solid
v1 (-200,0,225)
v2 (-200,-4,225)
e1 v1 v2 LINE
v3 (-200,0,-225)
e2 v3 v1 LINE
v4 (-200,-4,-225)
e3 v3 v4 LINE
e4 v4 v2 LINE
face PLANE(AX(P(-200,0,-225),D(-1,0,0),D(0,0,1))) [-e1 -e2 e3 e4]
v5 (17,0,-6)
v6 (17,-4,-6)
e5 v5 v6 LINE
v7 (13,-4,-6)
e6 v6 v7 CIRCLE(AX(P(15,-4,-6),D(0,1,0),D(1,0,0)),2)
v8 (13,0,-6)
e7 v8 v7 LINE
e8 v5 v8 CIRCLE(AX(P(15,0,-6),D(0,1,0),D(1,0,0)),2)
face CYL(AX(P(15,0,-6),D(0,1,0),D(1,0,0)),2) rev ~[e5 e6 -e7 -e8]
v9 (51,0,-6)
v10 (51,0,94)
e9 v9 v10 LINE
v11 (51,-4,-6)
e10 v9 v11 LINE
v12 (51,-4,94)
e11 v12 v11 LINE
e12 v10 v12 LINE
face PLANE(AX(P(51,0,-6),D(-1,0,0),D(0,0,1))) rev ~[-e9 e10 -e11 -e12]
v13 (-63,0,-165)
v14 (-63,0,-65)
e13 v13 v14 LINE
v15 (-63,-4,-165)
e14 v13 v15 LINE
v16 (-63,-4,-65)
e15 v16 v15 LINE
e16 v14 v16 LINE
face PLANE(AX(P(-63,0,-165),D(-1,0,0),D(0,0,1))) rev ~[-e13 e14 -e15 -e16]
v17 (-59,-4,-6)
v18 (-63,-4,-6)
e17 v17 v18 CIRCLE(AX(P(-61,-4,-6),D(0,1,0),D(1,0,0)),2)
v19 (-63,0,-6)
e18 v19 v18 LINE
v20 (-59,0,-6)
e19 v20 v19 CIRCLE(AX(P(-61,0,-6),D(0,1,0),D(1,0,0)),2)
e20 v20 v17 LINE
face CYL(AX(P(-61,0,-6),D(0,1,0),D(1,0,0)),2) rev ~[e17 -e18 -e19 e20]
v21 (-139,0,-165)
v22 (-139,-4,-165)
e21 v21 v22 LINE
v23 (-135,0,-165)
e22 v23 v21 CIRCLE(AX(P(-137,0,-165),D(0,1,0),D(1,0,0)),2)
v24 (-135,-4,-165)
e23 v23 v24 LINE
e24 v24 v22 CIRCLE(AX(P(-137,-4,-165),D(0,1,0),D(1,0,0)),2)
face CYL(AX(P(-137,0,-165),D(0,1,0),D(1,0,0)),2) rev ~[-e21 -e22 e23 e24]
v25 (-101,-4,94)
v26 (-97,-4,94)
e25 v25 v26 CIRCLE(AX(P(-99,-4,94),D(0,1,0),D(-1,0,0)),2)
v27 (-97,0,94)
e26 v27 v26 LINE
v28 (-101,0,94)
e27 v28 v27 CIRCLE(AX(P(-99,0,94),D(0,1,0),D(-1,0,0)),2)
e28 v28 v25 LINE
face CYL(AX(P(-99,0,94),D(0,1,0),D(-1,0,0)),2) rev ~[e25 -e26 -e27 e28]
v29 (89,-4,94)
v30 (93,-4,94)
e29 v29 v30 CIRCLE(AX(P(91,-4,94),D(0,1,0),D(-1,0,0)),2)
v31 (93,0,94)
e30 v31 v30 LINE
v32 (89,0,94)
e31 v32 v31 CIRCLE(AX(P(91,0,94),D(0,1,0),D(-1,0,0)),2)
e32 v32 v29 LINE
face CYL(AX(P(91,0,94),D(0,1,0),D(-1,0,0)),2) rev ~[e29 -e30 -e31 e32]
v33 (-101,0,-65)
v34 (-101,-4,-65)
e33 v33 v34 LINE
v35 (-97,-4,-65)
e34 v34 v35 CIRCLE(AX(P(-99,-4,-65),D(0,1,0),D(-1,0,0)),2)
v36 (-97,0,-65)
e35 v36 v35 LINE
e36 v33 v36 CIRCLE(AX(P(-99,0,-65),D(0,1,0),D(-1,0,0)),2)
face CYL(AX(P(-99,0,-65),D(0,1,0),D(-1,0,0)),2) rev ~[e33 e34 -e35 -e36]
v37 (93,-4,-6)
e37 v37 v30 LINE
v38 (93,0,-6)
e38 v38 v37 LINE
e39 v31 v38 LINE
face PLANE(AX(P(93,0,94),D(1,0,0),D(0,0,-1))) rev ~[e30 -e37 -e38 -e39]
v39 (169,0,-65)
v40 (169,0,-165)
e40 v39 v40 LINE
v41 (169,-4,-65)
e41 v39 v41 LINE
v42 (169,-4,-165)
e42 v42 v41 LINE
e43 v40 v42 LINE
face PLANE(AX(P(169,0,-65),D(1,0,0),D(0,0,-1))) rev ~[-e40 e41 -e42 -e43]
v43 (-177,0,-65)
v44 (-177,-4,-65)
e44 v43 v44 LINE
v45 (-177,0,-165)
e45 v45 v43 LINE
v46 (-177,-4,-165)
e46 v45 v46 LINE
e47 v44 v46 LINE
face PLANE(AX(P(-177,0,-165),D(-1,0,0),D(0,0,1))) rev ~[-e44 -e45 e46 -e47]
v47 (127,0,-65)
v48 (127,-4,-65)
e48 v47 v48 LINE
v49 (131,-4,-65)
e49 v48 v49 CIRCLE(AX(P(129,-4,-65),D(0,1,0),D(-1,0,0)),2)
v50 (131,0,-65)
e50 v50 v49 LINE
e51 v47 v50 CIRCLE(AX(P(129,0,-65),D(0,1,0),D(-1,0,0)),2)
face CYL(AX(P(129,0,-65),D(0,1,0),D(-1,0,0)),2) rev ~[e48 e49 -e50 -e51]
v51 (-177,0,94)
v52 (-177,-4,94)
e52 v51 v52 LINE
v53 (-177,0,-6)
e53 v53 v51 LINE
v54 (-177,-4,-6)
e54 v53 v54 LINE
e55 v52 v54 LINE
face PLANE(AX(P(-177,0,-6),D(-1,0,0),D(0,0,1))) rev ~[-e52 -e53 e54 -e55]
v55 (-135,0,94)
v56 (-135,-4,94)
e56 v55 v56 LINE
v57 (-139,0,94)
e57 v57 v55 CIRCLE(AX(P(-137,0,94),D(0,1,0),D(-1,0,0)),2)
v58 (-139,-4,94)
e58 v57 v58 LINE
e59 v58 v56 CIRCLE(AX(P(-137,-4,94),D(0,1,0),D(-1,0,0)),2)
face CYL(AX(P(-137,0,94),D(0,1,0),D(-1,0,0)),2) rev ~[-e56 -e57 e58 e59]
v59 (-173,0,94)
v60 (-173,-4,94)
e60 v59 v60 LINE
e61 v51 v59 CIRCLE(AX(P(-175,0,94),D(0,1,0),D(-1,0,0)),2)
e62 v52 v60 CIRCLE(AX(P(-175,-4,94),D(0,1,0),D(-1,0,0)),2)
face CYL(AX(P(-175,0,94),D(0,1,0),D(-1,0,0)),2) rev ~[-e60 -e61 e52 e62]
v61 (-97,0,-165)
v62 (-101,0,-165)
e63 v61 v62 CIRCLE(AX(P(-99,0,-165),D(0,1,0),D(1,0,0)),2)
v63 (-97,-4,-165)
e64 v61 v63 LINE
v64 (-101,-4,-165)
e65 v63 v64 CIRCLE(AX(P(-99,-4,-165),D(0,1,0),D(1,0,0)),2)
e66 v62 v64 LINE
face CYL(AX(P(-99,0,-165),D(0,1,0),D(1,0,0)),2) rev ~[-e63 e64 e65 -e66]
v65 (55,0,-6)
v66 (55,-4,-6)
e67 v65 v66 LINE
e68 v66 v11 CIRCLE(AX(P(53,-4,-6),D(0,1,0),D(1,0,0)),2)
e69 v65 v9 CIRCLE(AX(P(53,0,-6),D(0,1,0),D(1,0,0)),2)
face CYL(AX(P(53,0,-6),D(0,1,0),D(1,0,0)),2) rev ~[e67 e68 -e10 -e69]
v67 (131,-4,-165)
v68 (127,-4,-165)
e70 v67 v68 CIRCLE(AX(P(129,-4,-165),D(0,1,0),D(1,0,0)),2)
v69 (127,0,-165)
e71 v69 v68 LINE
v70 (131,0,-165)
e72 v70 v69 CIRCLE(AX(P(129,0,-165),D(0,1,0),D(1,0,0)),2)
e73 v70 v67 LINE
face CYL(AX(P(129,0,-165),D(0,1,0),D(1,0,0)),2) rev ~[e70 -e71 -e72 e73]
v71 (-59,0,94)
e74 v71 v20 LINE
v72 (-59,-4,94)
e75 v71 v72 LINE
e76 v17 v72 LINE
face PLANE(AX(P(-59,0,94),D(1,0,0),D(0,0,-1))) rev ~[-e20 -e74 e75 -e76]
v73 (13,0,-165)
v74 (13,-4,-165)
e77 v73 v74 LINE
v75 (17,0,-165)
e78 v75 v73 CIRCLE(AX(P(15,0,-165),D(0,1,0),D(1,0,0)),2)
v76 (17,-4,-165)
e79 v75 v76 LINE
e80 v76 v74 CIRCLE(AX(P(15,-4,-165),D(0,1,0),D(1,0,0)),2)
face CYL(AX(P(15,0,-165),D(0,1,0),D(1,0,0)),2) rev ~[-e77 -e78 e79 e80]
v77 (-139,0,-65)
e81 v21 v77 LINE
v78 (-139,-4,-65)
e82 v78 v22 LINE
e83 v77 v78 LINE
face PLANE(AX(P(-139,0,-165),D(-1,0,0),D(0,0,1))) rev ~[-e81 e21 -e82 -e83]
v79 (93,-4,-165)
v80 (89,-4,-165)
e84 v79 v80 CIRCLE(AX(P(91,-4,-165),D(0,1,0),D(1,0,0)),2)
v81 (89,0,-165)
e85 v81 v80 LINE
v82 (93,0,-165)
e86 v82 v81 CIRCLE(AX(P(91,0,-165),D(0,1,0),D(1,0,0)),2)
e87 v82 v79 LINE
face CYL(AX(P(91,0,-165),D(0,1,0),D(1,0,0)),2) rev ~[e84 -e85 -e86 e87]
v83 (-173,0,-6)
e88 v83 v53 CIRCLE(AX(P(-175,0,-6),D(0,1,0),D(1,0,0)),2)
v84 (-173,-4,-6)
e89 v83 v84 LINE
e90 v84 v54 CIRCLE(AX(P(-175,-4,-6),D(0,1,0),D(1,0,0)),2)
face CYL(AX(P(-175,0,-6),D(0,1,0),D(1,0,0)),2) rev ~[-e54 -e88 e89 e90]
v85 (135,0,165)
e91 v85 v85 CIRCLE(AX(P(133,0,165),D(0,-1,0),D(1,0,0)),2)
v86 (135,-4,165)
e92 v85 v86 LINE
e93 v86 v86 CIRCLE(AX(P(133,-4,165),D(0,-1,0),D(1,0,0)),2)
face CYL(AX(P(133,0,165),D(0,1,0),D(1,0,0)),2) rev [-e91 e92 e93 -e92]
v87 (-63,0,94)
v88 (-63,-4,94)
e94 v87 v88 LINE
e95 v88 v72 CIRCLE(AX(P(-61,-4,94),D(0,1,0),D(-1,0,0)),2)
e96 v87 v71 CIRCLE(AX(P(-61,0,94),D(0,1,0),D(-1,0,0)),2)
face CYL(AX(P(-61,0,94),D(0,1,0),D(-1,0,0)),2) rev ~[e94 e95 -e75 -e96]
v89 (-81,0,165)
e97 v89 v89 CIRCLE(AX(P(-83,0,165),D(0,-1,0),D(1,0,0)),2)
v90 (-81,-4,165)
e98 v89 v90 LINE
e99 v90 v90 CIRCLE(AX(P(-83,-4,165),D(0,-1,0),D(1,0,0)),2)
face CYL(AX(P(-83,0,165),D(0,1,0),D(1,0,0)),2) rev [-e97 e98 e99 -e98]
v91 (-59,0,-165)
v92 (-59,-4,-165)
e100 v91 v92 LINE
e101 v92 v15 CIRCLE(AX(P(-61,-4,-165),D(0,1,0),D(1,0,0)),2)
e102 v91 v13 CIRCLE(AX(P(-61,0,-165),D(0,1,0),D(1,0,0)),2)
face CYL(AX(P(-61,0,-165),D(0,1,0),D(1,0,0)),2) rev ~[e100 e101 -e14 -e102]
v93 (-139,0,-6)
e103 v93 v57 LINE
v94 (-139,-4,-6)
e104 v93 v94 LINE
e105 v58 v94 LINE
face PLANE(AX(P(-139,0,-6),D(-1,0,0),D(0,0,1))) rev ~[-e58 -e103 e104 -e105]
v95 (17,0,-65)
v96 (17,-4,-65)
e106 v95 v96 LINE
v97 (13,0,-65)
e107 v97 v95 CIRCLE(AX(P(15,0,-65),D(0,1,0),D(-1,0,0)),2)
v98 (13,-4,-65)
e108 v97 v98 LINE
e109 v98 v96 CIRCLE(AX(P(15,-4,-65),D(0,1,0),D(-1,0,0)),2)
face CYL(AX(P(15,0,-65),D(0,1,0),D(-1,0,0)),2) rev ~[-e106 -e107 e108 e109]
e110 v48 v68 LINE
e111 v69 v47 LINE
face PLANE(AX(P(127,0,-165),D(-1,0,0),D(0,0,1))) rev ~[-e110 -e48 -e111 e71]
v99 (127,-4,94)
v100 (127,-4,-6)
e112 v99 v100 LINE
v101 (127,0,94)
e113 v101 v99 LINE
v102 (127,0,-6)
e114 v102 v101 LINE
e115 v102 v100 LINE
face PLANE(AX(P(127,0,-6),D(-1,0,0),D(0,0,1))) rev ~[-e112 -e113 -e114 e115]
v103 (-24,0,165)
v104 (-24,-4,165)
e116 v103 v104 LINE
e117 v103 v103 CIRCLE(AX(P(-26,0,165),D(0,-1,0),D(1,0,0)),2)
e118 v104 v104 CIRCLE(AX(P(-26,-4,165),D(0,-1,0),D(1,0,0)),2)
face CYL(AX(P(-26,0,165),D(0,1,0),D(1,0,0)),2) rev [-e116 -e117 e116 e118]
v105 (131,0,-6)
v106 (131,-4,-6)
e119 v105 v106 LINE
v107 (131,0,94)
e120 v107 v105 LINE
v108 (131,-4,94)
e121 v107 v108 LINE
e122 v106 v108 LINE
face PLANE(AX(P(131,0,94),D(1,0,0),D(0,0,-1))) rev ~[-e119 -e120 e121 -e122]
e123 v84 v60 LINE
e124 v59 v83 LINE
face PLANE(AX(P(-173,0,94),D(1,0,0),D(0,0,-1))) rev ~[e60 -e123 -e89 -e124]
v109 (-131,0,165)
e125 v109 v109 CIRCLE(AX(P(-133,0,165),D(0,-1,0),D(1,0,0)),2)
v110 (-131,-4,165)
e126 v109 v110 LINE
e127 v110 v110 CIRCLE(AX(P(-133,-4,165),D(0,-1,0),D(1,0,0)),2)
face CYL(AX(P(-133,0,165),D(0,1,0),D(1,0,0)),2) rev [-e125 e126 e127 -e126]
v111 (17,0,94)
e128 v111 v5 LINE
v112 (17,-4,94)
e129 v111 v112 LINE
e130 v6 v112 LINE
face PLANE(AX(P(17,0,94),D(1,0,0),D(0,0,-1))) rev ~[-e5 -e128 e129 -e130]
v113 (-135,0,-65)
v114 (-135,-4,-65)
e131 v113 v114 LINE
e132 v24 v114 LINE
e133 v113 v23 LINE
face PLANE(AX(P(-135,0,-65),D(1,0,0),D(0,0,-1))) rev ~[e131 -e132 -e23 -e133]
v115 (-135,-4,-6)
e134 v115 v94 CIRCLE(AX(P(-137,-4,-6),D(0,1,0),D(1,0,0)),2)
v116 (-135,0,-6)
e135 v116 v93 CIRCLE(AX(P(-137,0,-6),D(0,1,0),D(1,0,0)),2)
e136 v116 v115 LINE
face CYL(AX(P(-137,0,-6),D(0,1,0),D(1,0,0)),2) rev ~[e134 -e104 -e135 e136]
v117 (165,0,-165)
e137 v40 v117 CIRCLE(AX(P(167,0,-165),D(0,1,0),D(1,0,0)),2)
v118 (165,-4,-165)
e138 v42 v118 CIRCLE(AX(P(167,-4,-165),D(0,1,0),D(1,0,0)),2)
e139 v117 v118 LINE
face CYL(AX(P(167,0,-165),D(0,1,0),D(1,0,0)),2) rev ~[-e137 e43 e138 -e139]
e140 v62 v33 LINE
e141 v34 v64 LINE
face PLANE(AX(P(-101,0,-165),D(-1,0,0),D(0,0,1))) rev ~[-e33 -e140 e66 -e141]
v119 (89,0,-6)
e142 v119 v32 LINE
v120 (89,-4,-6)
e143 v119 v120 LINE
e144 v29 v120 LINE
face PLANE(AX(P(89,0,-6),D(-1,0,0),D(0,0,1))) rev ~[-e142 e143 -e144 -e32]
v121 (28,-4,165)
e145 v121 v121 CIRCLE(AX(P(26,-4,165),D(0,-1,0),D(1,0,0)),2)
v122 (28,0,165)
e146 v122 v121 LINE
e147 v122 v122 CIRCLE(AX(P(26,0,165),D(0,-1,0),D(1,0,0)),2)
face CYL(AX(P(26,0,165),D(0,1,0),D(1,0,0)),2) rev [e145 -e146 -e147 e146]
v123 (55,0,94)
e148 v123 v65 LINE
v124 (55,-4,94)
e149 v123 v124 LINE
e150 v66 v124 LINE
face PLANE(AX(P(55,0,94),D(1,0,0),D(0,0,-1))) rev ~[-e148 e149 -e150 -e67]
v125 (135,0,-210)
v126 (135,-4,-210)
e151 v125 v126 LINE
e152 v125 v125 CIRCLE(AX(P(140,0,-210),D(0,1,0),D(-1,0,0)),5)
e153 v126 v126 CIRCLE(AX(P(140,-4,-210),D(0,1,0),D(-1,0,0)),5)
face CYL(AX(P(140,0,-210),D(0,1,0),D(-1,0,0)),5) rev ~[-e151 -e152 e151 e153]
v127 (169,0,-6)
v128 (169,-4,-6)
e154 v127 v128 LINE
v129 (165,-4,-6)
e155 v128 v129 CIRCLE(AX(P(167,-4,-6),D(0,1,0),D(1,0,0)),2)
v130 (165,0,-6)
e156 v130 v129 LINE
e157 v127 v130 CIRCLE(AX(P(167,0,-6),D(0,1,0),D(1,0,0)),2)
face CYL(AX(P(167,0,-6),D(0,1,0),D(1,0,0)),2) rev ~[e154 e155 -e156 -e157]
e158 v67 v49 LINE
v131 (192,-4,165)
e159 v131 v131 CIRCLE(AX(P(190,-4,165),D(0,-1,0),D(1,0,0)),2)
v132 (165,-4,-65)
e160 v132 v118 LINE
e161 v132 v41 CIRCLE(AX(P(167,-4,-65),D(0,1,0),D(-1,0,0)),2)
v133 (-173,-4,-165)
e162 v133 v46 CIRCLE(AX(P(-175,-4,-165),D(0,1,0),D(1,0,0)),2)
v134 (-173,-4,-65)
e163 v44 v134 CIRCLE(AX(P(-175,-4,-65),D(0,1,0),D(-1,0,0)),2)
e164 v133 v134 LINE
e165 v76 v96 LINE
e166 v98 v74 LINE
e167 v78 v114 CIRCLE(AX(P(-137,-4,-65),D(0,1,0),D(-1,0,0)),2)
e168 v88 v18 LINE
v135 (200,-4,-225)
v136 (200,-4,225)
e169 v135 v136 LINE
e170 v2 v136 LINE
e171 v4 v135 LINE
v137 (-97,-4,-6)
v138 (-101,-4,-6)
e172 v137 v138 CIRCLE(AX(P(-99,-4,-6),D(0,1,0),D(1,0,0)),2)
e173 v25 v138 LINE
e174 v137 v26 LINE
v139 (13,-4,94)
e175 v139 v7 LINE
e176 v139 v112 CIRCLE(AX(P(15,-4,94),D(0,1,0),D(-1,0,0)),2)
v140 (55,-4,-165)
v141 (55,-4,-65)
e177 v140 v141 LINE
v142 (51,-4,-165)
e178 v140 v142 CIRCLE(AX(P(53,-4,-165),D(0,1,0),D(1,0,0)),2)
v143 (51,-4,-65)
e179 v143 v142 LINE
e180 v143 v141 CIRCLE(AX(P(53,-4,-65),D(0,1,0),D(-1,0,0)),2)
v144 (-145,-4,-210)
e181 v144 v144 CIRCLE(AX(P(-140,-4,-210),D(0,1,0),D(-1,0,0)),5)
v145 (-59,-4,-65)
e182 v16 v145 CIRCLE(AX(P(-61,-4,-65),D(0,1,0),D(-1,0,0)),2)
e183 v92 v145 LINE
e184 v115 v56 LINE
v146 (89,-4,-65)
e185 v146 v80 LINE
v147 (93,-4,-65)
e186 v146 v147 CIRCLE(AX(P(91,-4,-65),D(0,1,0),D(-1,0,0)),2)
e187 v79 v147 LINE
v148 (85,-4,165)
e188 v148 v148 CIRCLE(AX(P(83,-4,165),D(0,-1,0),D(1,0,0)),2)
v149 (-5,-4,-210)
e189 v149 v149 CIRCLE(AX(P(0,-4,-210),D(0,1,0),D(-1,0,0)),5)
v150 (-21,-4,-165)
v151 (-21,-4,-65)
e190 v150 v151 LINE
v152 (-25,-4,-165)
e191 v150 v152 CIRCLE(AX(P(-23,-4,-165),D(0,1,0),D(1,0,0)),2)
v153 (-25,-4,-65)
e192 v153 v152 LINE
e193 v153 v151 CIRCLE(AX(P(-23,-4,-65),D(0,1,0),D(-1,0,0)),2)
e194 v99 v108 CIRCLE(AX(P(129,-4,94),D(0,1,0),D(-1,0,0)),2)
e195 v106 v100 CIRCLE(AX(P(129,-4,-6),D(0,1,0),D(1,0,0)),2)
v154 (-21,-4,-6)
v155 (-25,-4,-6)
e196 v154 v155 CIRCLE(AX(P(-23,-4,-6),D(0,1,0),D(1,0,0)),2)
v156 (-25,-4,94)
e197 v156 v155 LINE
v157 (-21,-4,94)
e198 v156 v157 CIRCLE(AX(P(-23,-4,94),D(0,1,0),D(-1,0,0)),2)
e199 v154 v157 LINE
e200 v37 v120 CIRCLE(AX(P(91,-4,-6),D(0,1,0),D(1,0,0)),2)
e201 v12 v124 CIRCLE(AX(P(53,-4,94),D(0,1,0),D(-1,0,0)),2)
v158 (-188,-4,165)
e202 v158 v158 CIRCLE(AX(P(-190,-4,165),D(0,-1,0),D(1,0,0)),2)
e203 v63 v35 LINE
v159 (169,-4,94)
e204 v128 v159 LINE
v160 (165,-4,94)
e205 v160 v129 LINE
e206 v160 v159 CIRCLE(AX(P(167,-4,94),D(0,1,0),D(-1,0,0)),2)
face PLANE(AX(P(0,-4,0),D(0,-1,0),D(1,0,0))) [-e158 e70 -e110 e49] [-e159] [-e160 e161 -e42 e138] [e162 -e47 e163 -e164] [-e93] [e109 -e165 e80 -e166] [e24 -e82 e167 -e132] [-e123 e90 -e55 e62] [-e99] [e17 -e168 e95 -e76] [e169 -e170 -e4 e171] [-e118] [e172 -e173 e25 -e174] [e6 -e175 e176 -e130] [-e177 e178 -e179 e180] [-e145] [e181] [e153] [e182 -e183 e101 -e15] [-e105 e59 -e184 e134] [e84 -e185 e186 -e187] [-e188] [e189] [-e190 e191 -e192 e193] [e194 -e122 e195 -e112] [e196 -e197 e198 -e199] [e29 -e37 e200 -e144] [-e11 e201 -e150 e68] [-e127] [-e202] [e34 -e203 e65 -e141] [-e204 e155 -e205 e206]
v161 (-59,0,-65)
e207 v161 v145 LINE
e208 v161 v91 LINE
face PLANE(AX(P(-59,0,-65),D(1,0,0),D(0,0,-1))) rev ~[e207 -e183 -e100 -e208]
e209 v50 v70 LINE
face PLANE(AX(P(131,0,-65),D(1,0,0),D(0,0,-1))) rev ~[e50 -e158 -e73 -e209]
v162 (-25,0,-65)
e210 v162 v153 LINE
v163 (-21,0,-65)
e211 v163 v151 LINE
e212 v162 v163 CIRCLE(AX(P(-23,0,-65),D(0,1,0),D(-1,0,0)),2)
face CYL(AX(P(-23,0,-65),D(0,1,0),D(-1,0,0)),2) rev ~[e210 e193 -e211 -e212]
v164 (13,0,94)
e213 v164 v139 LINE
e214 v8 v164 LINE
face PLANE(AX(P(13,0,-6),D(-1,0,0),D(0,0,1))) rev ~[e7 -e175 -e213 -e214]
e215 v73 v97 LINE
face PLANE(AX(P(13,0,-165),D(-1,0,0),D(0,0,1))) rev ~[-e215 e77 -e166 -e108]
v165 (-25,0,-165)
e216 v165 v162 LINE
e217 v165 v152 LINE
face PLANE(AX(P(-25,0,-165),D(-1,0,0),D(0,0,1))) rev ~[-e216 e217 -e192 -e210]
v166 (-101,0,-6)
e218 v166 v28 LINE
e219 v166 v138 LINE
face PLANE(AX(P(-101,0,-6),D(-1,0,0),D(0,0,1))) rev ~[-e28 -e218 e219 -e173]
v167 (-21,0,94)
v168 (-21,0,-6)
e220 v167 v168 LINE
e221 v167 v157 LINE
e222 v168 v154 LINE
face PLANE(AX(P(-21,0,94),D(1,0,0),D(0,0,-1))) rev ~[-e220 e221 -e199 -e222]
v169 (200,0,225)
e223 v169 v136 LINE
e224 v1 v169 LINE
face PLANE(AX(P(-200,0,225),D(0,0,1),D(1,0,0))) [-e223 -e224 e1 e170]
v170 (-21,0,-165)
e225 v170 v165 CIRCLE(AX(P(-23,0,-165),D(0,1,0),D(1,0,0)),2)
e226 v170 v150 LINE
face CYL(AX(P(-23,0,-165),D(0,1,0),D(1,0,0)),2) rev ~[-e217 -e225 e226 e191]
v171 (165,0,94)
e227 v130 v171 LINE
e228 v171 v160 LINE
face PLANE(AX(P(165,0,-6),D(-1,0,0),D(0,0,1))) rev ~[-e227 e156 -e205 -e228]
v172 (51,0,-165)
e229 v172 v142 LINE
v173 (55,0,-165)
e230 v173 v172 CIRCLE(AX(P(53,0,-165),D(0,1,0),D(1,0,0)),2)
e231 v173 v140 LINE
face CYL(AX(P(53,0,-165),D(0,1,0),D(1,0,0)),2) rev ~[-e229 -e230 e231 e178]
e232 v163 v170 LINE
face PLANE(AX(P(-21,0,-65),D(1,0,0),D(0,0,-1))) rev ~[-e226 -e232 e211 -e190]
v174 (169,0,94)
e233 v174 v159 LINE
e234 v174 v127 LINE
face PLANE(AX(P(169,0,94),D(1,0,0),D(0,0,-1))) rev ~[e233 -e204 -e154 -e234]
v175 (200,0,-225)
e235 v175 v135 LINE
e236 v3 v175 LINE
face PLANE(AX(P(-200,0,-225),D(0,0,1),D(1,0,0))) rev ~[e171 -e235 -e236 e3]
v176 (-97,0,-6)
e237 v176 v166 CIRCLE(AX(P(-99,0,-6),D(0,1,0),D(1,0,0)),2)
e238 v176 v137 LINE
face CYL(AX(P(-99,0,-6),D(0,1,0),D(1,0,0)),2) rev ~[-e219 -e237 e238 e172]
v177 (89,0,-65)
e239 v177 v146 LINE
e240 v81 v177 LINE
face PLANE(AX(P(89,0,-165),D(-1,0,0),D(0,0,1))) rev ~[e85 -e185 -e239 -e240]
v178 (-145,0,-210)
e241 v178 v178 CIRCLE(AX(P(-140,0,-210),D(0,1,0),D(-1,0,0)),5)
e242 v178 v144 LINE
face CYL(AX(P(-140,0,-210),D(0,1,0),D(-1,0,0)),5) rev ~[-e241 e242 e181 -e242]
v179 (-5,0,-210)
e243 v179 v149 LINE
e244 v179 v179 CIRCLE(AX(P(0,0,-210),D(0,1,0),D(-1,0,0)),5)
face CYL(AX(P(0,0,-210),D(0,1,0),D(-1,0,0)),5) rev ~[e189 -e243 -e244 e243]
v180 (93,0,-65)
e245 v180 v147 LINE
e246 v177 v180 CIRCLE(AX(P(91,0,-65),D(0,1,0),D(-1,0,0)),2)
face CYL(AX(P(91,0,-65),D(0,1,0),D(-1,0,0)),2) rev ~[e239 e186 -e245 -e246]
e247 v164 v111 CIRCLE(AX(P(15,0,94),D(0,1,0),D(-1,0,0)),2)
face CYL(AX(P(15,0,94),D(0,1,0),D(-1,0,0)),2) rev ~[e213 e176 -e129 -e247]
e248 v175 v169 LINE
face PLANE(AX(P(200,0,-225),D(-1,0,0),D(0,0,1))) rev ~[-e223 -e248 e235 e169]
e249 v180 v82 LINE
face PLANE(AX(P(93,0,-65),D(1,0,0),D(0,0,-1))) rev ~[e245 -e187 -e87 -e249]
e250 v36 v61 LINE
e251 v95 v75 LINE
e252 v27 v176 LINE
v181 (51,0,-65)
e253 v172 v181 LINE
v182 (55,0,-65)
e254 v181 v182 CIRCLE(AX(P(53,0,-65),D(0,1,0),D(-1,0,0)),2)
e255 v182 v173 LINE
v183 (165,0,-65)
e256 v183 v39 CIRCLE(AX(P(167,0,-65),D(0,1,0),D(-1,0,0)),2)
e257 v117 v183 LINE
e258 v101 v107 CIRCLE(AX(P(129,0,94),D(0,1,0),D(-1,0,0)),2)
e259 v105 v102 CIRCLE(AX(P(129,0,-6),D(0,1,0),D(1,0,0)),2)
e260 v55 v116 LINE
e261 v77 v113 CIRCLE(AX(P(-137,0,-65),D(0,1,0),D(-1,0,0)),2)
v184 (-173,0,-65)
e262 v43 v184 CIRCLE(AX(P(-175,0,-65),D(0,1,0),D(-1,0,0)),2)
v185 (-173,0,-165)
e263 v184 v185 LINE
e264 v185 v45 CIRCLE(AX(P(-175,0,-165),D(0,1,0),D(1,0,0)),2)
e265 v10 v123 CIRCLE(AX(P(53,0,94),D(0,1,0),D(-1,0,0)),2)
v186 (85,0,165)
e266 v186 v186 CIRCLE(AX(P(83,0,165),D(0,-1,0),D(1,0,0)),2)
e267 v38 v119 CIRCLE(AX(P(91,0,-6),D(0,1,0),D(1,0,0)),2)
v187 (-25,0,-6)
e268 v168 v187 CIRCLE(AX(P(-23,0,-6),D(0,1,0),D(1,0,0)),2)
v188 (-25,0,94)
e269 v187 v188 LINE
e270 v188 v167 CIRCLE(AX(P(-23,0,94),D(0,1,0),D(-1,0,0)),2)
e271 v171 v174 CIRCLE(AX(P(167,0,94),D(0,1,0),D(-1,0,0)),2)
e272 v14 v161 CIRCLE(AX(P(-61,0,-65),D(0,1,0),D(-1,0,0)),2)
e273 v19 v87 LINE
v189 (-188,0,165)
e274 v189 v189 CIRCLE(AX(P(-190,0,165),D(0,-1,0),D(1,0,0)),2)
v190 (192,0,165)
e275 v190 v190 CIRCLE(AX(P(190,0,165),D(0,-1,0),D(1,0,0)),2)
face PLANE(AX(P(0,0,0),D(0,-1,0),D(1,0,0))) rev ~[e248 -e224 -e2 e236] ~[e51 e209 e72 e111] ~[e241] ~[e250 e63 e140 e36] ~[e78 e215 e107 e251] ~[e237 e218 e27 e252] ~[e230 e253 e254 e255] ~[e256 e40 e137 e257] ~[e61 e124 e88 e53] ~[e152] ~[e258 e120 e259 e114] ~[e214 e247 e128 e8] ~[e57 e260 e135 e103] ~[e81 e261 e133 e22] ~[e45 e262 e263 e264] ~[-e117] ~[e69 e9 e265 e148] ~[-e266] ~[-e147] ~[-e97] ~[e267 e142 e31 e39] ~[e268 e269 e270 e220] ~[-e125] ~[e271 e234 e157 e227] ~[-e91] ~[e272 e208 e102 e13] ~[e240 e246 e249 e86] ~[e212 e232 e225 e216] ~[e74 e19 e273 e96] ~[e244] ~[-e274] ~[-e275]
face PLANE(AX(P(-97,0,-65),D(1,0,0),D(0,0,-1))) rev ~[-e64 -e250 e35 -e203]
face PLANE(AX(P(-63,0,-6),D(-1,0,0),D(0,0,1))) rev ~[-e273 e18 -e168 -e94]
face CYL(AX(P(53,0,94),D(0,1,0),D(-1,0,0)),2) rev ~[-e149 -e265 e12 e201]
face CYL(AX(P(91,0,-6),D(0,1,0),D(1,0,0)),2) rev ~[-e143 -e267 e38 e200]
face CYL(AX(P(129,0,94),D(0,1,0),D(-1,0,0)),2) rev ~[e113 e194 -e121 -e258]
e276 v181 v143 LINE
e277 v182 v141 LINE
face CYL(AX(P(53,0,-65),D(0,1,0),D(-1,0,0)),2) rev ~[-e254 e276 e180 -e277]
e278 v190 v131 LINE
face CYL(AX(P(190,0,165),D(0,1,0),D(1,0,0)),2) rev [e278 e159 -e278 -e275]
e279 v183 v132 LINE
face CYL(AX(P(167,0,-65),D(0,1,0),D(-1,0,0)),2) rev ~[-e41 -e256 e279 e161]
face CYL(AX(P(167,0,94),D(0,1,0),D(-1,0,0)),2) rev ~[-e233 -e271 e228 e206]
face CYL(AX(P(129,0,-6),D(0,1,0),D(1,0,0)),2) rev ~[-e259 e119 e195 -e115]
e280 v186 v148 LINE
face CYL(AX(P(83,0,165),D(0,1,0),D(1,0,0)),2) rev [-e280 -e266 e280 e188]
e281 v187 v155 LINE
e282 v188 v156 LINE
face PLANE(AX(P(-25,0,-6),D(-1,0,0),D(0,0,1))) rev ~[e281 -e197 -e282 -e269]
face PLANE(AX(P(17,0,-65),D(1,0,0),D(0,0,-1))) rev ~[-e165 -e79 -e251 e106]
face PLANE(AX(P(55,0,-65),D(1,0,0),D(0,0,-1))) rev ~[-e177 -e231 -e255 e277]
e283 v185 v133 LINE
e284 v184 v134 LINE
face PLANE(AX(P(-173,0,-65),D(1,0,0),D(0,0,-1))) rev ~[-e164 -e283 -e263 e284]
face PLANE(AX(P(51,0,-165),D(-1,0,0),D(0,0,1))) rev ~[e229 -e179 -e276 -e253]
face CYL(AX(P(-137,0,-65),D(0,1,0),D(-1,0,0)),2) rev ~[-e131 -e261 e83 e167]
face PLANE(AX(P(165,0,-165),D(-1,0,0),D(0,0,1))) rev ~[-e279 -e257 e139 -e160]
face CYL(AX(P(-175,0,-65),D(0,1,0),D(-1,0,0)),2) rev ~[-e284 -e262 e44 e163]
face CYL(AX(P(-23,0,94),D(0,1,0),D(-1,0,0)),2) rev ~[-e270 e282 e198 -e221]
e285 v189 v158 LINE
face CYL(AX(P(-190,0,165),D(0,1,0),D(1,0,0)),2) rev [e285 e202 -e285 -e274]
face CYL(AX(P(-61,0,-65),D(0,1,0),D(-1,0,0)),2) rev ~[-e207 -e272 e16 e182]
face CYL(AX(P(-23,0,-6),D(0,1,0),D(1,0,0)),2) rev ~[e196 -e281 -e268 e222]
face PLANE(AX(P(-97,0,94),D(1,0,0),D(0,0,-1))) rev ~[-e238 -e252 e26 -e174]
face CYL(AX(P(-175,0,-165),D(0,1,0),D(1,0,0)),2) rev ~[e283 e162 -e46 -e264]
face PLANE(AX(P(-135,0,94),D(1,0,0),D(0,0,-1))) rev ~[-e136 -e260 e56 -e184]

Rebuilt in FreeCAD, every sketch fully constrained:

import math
import FreeCAD as App
import Part
import Sketcher
from FreeCAD import Vector

doc = App.newDocument("Part")
body = doc.addObject("PartDesign::Body", "Body")

# Sketch on XZ plane
sketch1 = body.newObject("Sketcher::SketchObject", "Sketch")
sketch1.AttachmentSupport = (doc.getObject("XZ_Plane"), [""])
sketch1.MapMode = "FlatFace"
sketch1.addGeometry(Part.LineSegment(Vector(-200, 225, 0), Vector(-200, -225, 0)), False)
sketch1.addGeometry(Part.LineSegment(Vector(-200, -225, 0), Vector(200, -225, 0)), False)
sketch1.addGeometry(Part.LineSegment(Vector(200, -225, 0), Vector(200, 225, 0)), False)
sketch1.addGeometry(Part.LineSegment(Vector(200, 225, 0), Vector(-200, 225, 0)), False)
sketch1.addGeometry(Part.Circle(Vector(-190, 165, 0), Vector(0, 0, 1), 2), False)
sketch1.addGeometry(Part.Circle(Vector(-133, 165, 0), Vector(0, 0, 1), 2), False)
sketch1.addGeometry(Part.Circle(Vector(-83, 165, 0), Vector(0, 0, 1), 2), False)
sketch1.addGeometry(Part.Circle(Vector(-26, 165, 0), Vector(0, 0, 1), 2), False)
sketch1.addGeometry(Part.Circle(Vector(26, 165, 0), Vector(0, 0, 1), 2), False)
sketch1.addGeometry(Part.Circle(Vector(83, 165, 0), Vector(0, 0, 1), 2), False)
sketch1.addGeometry(Part.Circle(Vector(133, 165, 0), Vector(0, 0, 1), 2), False)
sketch1.addGeometry(Part.Circle(Vector(190, 165, 0), Vector(0, 0, 1), 2), False)
sketch1.addConstraint(Sketcher.Constraint("Coincident", 0, 2, 1, 1))
sketch1.addConstraint(Sketcher.Constraint("Coincident", 1, 2, 2, 1))
sketch1.addConstraint(Sketcher.Constraint("Coincident", 2, 2, 3, 1))
sketch1.addConstraint(Sketcher.Constraint("Coincident", 3, 2, 0, 1))
sketch1.addConstraint(Sketcher.Constraint("Vertical", 0))
sketch1.addConstraint(Sketcher.Constraint("Horizontal", 1))
sketch1.addConstraint(Sketcher.Constraint("Vertical", 2))
sketch1.addConstraint(Sketcher.Constraint("Horizontal", 3))
sketch1.addConstraint(Sketcher.Constraint("Equal", 4, 5))
sketch1.addConstraint(Sketcher.Constraint("Equal", 5, 6))
sketch1.addConstraint(Sketcher.Constraint("Equal", 6, 7))
sketch1.addConstraint(Sketcher.Constraint("Equal", 7, 8))
sketch1.addConstraint(Sketcher.Constraint("Equal", 8, 9))
sketch1.addConstraint(Sketcher.Constraint("Equal", 9, 10))
sketch1.addConstraint(Sketcher.Constraint("Equal", 10, 11))
sketch1.addConstraint(Sketcher.Constraint("Symmetric", 0, 2, 2, 2, -1, 1))
sketch1.addConstraint(Sketcher.Constraint("Symmetric", 7, 3, 8, 3, -2))
sketch1.addConstraint(Sketcher.Constraint("Symmetric", 6, 3, 9, 3, -2))
sketch1.addConstraint(Sketcher.Constraint("Symmetric", 5, 3, 10, 3, -2))
sketch1.addConstraint(Sketcher.Constraint("Symmetric", 4, 3, 11, 3, -2))
sketch1.addConstraint(Sketcher.Constraint("Horizontal", 4, 3, 5, 3))
sketch1.addConstraint(Sketcher.Constraint("Horizontal", 5, 3, 6, 3))
sketch1.addConstraint(Sketcher.Constraint("Horizontal", 6, 3, 7, 3))
sketch1.addConstraint(Sketcher.Constraint("Diameter", 4, 4.0))
sketch1.addConstraint(Sketcher.Constraint("DistanceX", 1, 1, 1, 2, 400.0))
sketch1.addConstraint(Sketcher.Constraint("DistanceY", 0, 2, 0, 1, 450.0))
sketch1.addConstraint(Sketcher.Constraint("DistanceX", 4, 3, -1, 1, 190.0))
sketch1.addConstraint(Sketcher.Constraint("DistanceY", -1, 1, 4, 3, 165.0))
sketch1.addConstraint(Sketcher.Constraint("DistanceX", 5, 3, -1, 1, 133.0))
sketch1.addConstraint(Sketcher.Constraint("DistanceX", 6, 3, -1, 1, 83.0))
sketch1.addConstraint(Sketcher.Constraint("DistanceX", 7, 3, -1, 1, 26.0))
pad1 = body.newObject("PartDesign::Pad", "Pad")
pad1.Profile = sketch1
pad1.Length = 4

# Sketch on XZ plane
sketch2 = body.newObject("Sketcher::SketchObject", "Sketch001")
sketch2.AttachmentSupport = (doc.getObject("XZ_Plane"), [""])
sketch2.MapMode = "FlatFace"
sketch2.addGeometry(Part.Circle(Vector(0, -210, 0), Vector(0, 0, 1), 5), False)
sketch2.addGeometry(Part.Circle(Vector(-140, -210, 0), Vector(0, 0, 1), 5), False)
sketch2.addGeometry(Part.Circle(Vector(140, -210, 0), Vector(0, 0, 1), 5), False)
sketch2.addConstraint(Sketcher.Constraint("Equal", 0, 1))
sketch2.addConstraint(Sketcher.Constraint("Equal", 1, 2))
sketch2.addConstraint(Sketcher.Constraint("Symmetric", 1, 3, 2, 3, -2))
sketch2.addConstraint(Sketcher.Constraint("PointOnObject", 0, 3, -2))
sketch2.addConstraint(Sketcher.Constraint("Horizontal", 0, 3, 1, 3))
sketch2.addConstraint(Sketcher.Constraint("Diameter", 0, 10.0))
sketch2.addConstraint(Sketcher.Constraint("DistanceY", 0, 3, -1, 1, 210.0))
sketch2.addConstraint(Sketcher.Constraint("DistanceX", 1, 3, -1, 1, 140.0))
pocket1 = body.newObject("PartDesign::Pocket", "Pocket")
pocket1.Profile = sketch2
pocket1.Length = 25
pocket1.Reversed = True

# Sketch on XZ plane
sketch3 = body.newObject("Sketcher::SketchObject", "Sketch002")
sketch3.AttachmentSupport = (doc.getObject("XZ_Plane"), [""])
sketch3.MapMode = "FlatFace"
sketch3.addGeometry(Part.ArcOfCircle(Part.Circle(Vector(-175, -165, 0), Vector(0, 0, 1), 2), math.radians(180), math.radians(360)), False)
sketch3.addGeometry(Part.LineSegment(Vector(-177, -165, 0), Vector(-177, -65, 0)), False)
sketch3.addGeometry(Part.ArcOfCircle(Part.Circle(Vector(-175, -65, 0), Vector(0, 0, 1), 2), math.radians(0), math.radians(180)), False)
sketch3.addGeometry(Part.LineSegment(Vector(-173, -65, 0), Vector(-173, -165, 0)), False)
sketch3.addGeometry(Part.LineSegment(Vector(-173, 94, 0), Vector(-173, -6, 0)), False)
sketch3.addGeometry(Part.ArcOfCircle(Part.Circle(Vector(-175, -6, 0), Vector(0, 0, 1), 2), math.radians(180), math.radians(360)), False)
sketch3.addGeometry(Part.LineSegment(Vector(-177, -6, 0), Vector(-177, 94, 0)), False)
sketch3.addGeometry(Part.ArcOfCircle(Part.Circle(Vector(-175, 94, 0), Vector(0, 0, 1), 2), math.radians(0), math.radians(180)), False)
sketch3.addGeometry(Part.LineSegment(Vector(-135, -65, 0), Vector(-135, -165, 0)), False)
sketch3.addGeometry(Part.ArcOfCircle(Part.Circle(Vector(-137, -165, 0), Vector(0, 0, 1), 2), math.radians(180), math.radians(360)), False)
sketch3.addGeometry(Part.LineSegment(Vector(-139, -165, 0), Vector(-139, -65, 0)), False)
sketch3.addGeometry(Part.ArcOfCircle(Part.Circle(Vector(-137, -65, 0), Vector(0, 0, 1), 2), math.radians(0), math.radians(180)), False)
sketch3.addGeometry(Part.LineSegment(Vector(-135, 94, 0), Vector(-135, -6, 0)), False)
sketch3.addGeometry(Part.ArcOfCircle(Part.Circle(Vector(-137, -6, 0), Vector(0, 0, 1), 2), math.radians(180), math.radians(360)), False)
sketch3.addGeometry(Part.LineSegment(Vector(-139, -6, 0), Vector(-139, 94, 0)), False)
sketch3.addGeometry(Part.ArcOfCircle(Part.Circle(Vector(-137, 94, 0), Vector(0, 0, 1), 2), math.radians(0), math.radians(180)), False)
sketch3.addGeometry(Part.LineSegment(Vector(-97, -65, 0), Vector(-97, -165, 0)), False)
sketch3.addGeometry(Part.ArcOfCircle(Part.Circle(Vector(-99, -165, 0), Vector(0, 0, 1), 2), math.radians(180), math.radians(360)), False)
sketch3.addGeometry(Part.LineSegment(Vector(-101, -165, 0), Vector(-101, -65, 0)), False)
sketch3.addGeometry(Part.ArcOfCircle(Part.Circle(Vector(-99, -65, 0), Vector(0, 0, 1), 2), math.radians(0), math.radians(180)), False)
sketch3.addGeometry(Part.LineSegment(Vector(-97, 94, 0), Vector(-97, -6, 0)), False)
sketch3.addGeometry(Part.ArcOfCircle(Part.Circle(Vector(-99, -6, 0), Vector(0, 0, 1), 2), math.radians(180), math.radians(360)), False)
sketch3.addGeometry(Part.LineSegment(Vector(-101, -6, 0), Vector(-101, 94, 0)), False)
sketch3.addGeometry(Part.ArcOfCircle(Part.Circle(Vector(-99, 94, 0), Vector(0, 0, 1), 2), math.radians(0), math.radians(180)), False)
sketch3.addGeometry(Part.LineSegment(Vector(-59, -65, 0), Vector(-59, -165, 0)), False)
sketch3.addGeometry(Part.ArcOfCircle(Part.Circle(Vector(-61, -165, 0), Vector(0, 0, 1), 2), math.radians(180), math.radians(360)), False)
sketch3.addGeometry(Part.LineSegment(Vector(-63, -165, 0), Vector(-63, -65, 0)), False)
sketch3.addGeometry(Part.ArcOfCircle(Part.Circle(Vector(-61, -65, 0), Vector(0, 0, 1), 2), math.radians(0), math.radians(180)), False)
sketch3.addGeometry(Part.LineSegment(Vector(-59, 94, 0), Vector(-59, -6, 0)), False)
sketch3.addGeometry(Part.ArcOfCircle(Part.Circle(Vector(-61, -6, 0), Vector(0, 0, 1), 2), math.radians(180), math.radians(360)), False)
sketch3.addGeometry(Part.LineSegment(Vector(-63, -6, 0), Vector(-63, 94, 0)), False)
sketch3.addGeometry(Part.ArcOfCircle(Part.Circle(Vector(-61, 94, 0), Vector(0, 0, 1), 2), math.radians(0), math.radians(180)), False)
sketch3.addGeometry(Part.LineSegment(Vector(-21, -65, 0), Vector(-21, -165, 0)), False)
sketch3.addGeometry(Part.ArcOfCircle(Part.Circle(Vector(-23, -165, 0), Vector(0, 0, 1), 2), math.radians(180), math.radians(360)), False)
sketch3.addGeometry(Part.LineSegment(Vector(-25, -165, 0), Vector(-25, -65, 0)), False)
sketch3.addGeometry(Part.ArcOfCircle(Part.Circle(Vector(-23, -65, 0), Vector(0, 0, 1), 2), math.radians(0), math.radians(180)), False)
sketch3.addGeometry(Part.LineSegment(Vector(-21, 94, 0), Vector(-21, -6, 0)), False)
sketch3.addGeometry(Part.ArcOfCircle(Part.Circle(Vector(-23, -6, 0), Vector(0, 0, 1), 2), math.radians(180), math.radians(360)), False)
sketch3.addGeometry(Part.LineSegment(Vector(-25, -6, 0), Vector(-25, 94, 0)), False)
sketch3.addGeometry(Part.ArcOfCircle(Part.Circle(Vector(-23, 94, 0), Vector(0, 0, 1), 2), math.radians(0), math.radians(180)), False)
sketch3.addGeometry(Part.LineSegment(Vector(17, -65, 0), Vector(17, -165, 0)), False)
sketch3.addGeometry(Part.ArcOfCircle(Part.Circle(Vector(15, -165, 0), Vector(0, 0, 1), 2), math.radians(180), math.radians(360)), False)
sketch3.addGeometry(Part.LineSegment(Vector(13, -165, 0), Vector(13, -65, 0)), False)
sketch3.addGeometry(Part.ArcOfCircle(Part.Circle(Vector(15, -65, 0), Vector(0, 0, 1), 2), math.radians(0), math.radians(180)), False)
sketch3.addGeometry(Part.LineSegment(Vector(17, 94, 0), Vector(17, -6, 0)), False)
sketch3.addGeometry(Part.ArcOfCircle(Part.Circle(Vector(15, -6, 0), Vector(0, 0, 1), 2), math.radians(180), math.radians(360)), False)
sketch3.addGeometry(Part.LineSegment(Vector(13, -6, 0), Vector(13, 94, 0)), False)
sketch3.addGeometry(Part.ArcOfCircle(Part.Circle(Vector(15, 94, 0), Vector(0, 0, 1), 2), math.radians(0), math.radians(180)), False)
sketch3.addGeometry(Part.LineSegment(Vector(55, -65, 0), Vector(55, -165, 0)), False)
sketch3.addGeometry(Part.ArcOfCircle(Part.Circle(Vector(53, -165, 0), Vector(0, 0, 1), 2), math.radians(180), math.radians(360)), False)
sketch3.addGeometry(Part.LineSegment(Vector(51, -165, 0), Vector(51, -65, 0)), False)
sketch3.addGeometry(Part.ArcOfCircle(Part.Circle(Vector(53, -65, 0), Vector(0, 0, 1), 2), math.radians(0), math.radians(180)), False)
sketch3.addGeometry(Part.LineSegment(Vector(55, 94, 0), Vector(55, -6, 0)), False)
sketch3.addGeometry(Part.ArcOfCircle(Part.Circle(Vector(53, -6, 0), Vector(0, 0, 1), 2), math.radians(180), math.radians(360)), False)
sketch3.addGeometry(Part.LineSegment(Vector(51, -6, 0), Vector(51, 94, 0)), False)
sketch3.addGeometry(Part.ArcOfCircle(Part.Circle(Vector(53, 94, 0), Vector(0, 0, 1), 2), math.radians(0), math.radians(180)), False)
sketch3.addGeometry(Part.LineSegment(Vector(93, -65, 0), Vector(93, -165, 0)), False)
sketch3.addGeometry(Part.ArcOfCircle(Part.Circle(Vector(91, -165, 0), Vector(0, 0, 1), 2), math.radians(180), math.radians(360)), False)
sketch3.addGeometry(Part.LineSegment(Vector(89, -165, 0), Vector(89, -65, 0)), False)
sketch3.addGeometry(Part.ArcOfCircle(Part.Circle(Vector(91, -65, 0), Vector(0, 0, 1), 2), math.radians(0), math.radians(180)), False)
sketch3.addGeometry(Part.LineSegment(Vector(93, 94, 0), Vector(93, -6, 0)), False)
sketch3.addGeometry(Part.ArcOfCircle(Part.Circle(Vector(91, -6, 0), Vector(0, 0, 1), 2), math.radians(180), math.radians(360)), False)
sketch3.addGeometry(Part.LineSegment(Vector(89, -6, 0), Vector(89, 94, 0)), False)
sketch3.addGeometry(Part.ArcOfCircle(Part.Circle(Vector(91, 94, 0), Vector(0, 0, 1), 2), math.radians(0), math.radians(180)), False)
sketch3.addGeometry(Part.LineSegment(Vector(131, -65, 0), Vector(131, -165, 0)), False)
sketch3.addGeometry(Part.ArcOfCircle(Part.Circle(Vector(129, -165, 0), Vector(0, 0, 1), 2), math.radians(180), math.radians(360)), False)
sketch3.addGeometry(Part.LineSegment(Vector(127, -165, 0), Vector(127, -65, 0)), False)
sketch3.addGeometry(Part.ArcOfCircle(Part.Circle(Vector(129, -65, 0), Vector(0, 0, 1), 2), math.radians(0), math.radians(180)), False)
sketch3.addGeometry(Part.LineSegment(Vector(131, 94, 0), Vector(131, -6, 0)), False)
sketch3.addGeometry(Part.ArcOfCircle(Part.Circle(Vector(129, -6, 0), Vector(0, 0, 1), 2), math.radians(180), math.radians(360)), False)
sketch3.addGeometry(Part.LineSegment(Vector(127, -6, 0), Vector(127, 94, 0)), False)
sketch3.addGeometry(Part.ArcOfCircle(Part.Circle(Vector(129, 94, 0), Vector(0, 0, 1), 2), math.radians(0), math.radians(180)), False)
sketch3.addGeometry(Part.LineSegment(Vector(169, -65, 0), Vector(169, -165, 0)), False)
sketch3.addGeometry(Part.ArcOfCircle(Part.Circle(Vector(167, -165, 0), Vector(0, 0, 1), 2), math.radians(180), math.radians(360)), False)
sketch3.addGeometry(Part.LineSegment(Vector(165, -165, 0), Vector(165, -65, 0)), False)
sketch3.addGeometry(Part.ArcOfCircle(Part.Circle(Vector(167, -65, 0), Vector(0, 0, 1), 2), math.radians(0), math.radians(180)), False)
sketch3.addGeometry(Part.LineSegment(Vector(169, 94, 0), Vector(169, -6, 0)), False)
sketch3.addGeometry(Part.ArcOfCircle(Part.Circle(Vector(167, -6, 0), Vector(0, 0, 1), 2), math.radians(180), math.radians(360)), False)
sketch3.addGeometry(Part.LineSegment(Vector(165, -6, 0), Vector(165, 94, 0)), False)
sketch3.addGeometry(Part.ArcOfCircle(Part.Circle(Vector(167, 94, 0), Vector(0, 0, 1), 2), math.radians(0), math.radians(180)), False)
sketch3.addConstraint(Sketcher.Constraint("Tangent", 0, 1, 1, 1))
sketch3.addConstraint(Sketcher.Constraint("Tangent", 1, 2, 2, 2))
sketch3.addConstraint(Sketcher.Constraint("Tangent", 2, 1, 3, 1))
sketch3.addConstraint(Sketcher.Constraint("Tangent", 3, 2, 0, 2))
sketch3.addConstraint(Sketcher.Constraint("Tangent", 4, 2, 5, 2))
sketch3.addConstraint(Sketcher.Constraint("Tangent", 5, 1, 6, 1))
sketch3.addConstraint(Sketcher.Constraint("Tangent", 6, 2, 7, 2))
sketch3.addConstraint(Sketcher.Constraint("Tangent", 7, 1, 4, 1))
sketch3.addConstraint(Sketcher.Constraint("Tangent", 8, 2, 9, 2))
sketch3.addConstraint(Sketcher.Constraint("Tangent", 9, 1, 10, 1))
sketch3.addConstraint(Sketcher.Constraint("Tangent", 10, 2, 11, 2))
sketch3.addConstraint(Sketcher.Constraint("Tangent", 11, 1, 8, 1))
sketch3.addConstraint(Sketcher.Constraint("Tangent", 12, 2, 13, 2))
sketch3.addConstraint(Sketcher.Constraint("Tangent", 13, 1, 14, 1))
sketch3.addConstraint(Sketcher.Constraint("Tangent", 14, 2, 15, 2))
sketch3.addConstraint(Sketcher.Constraint("Tangent", 15, 1, 12, 1))
sketch3.addConstraint(Sketcher.Constraint("Tangent", 16, 2, 17, 2))
sketch3.addConstraint(Sketcher.Constraint("Tangent", 17, 1, 18, 1))
sketch3.addConstraint(Sketcher.Constraint("Tangent", 18, 2, 19, 2))
sketch3.addConstraint(Sketcher.Constraint("Tangent", 19, 1, 16, 1))
sketch3.addConstraint(Sketcher.Constraint("Tangent", 20, 2, 21, 2))
sketch3.addConstraint(Sketcher.Constraint("Tangent", 21, 1, 22, 1))
sketch3.addConstraint(Sketcher.Constraint("Tangent", 22, 2, 23, 2))
sketch3.addConstraint(Sketcher.Constraint("Tangent", 23, 1, 20, 1))
sketch3.addConstraint(Sketcher.Constraint("Tangent", 24, 2, 25, 2))
sketch3.addConstraint(Sketcher.Constraint("Tangent", 25, 1, 26, 1))
sketch3.addConstraint(Sketcher.Constraint("Tangent", 26, 2, 27, 2))
sketch3.addConstraint(Sketcher.Constraint("Tangent", 27, 1, 24, 1))
sketch3.addConstraint(Sketcher.Constraint("Tangent", 28, 2, 29, 2))
sketch3.addConstraint(Sketcher.Constraint("Tangent", 29, 1, 30, 1))
sketch3.addConstraint(Sketcher.Constraint("Tangent", 30, 2, 31, 2))
sketch3.addConstraint(Sketcher.Constraint("Tangent", 31, 1, 28, 1))
sketch3.addConstraint(Sketcher.Constraint("Tangent", 32, 2, 33, 2))
sketch3.addConstraint(Sketcher.Constraint("Tangent", 33, 1, 34, 1))
sketch3.addConstraint(Sketcher.Constraint("Tangent", 34, 2, 35, 2))
sketch3.addConstraint(Sketcher.Constraint("Tangent", 35, 1, 32, 1))
sketch3.addConstraint(Sketcher.Constraint("Tangent", 36, 2, 37, 2))
sketch3.addConstraint(Sketcher.Constraint("Tangent", 37, 1, 38, 1))
sketch3.addConstraint(Sketcher.Constraint("Tangent", 38, 2, 39, 2))
sketch3.addConstraint(Sketcher.Constraint("Tangent", 39, 1, 36, 1))
sketch3.addConstraint(Sketcher.Constraint("Tangent", 40, 2, 41, 2))
sketch3.addConstraint(Sketcher.Constraint("Tangent", 41, 1, 42, 1))
sketch3.addConstraint(Sketcher.Constraint("Tangent", 42, 2, 43, 2))
sketch3.addConstraint(Sketcher.Constraint("Tangent", 43, 1, 40, 1))
sketch3.addConstraint(Sketcher.Constraint("Tangent", 44, 2, 45, 2))
sketch3.addConstraint(Sketcher.Constraint("Tangent", 45, 1, 46, 1))
sketch3.addConstraint(Sketcher.Constraint("Tangent", 46, 2, 47, 2))
sketch3.addConstraint(Sketcher.Constraint("Tangent", 47, 1, 44, 1))
sketch3.addConstraint(Sketcher.Constraint("Tangent", 48, 2, 49, 2))
sketch3.addConstraint(Sketcher.Constraint("Tangent", 49, 1, 50, 1))
sketch3.addConstraint(Sketcher.Constraint("Tangent", 50, 2, 51, 2))
sketch3.addConstraint(Sketcher.Constraint("Tangent", 51, 1, 48, 1))
sketch3.addConstraint(Sketcher.Constraint("Tangent", 52, 2, 53, 2))
sketch3.addConstraint(Sketcher.Constraint("Tangent", 53, 1, 54, 1))
sketch3.addConstraint(Sketcher.Constraint("Tangent", 54, 2, 55, 2))
sketch3.addConstraint(Sketcher.Constraint("Tangent", 55, 1, 52, 1))
sketch3.addConstraint(Sketcher.Constraint("Tangent", 56, 2, 57, 2))
sketch3.addConstraint(Sketcher.Constraint("Tangent", 57, 1, 58, 1))
sketch3.addConstraint(Sketcher.Constraint("Tangent", 58, 2, 59, 2))
sketch3.addConstraint(Sketcher.Constraint("Tangent", 59, 1, 56, 1))
sketch3.addConstraint(Sketcher.Constraint("Tangent", 60, 2, 61, 2))
sketch3.addConstraint(Sketcher.Constraint("Tangent", 61, 1, 62, 1))
sketch3.addConstraint(Sketcher.Constraint("Tangent", 62, 2, 63, 2))
sketch3.addConstraint(Sketcher.Constraint("Tangent", 63, 1, 60, 1))
sketch3.addConstraint(Sketcher.Constraint("Tangent", 64, 2, 65, 2))
sketch3.addConstraint(Sketcher.Constraint("Tangent", 65, 1, 66, 1))
sketch3.addConstraint(Sketcher.Constraint("Tangent", 66, 2, 67, 2))
sketch3.addConstraint(Sketcher.Constraint("Tangent", 67, 1, 64, 1))
sketch3.addConstraint(Sketcher.Constraint("Tangent", 68, 2, 69, 2))
sketch3.addConstraint(Sketcher.Constraint("Tangent", 69, 1, 70, 1))
sketch3.addConstraint(Sketcher.Constraint("Tangent", 70, 2, 71, 2))
sketch3.addConstraint(Sketcher.Constraint("Tangent", 71, 1, 68, 1))
sketch3.addConstraint(Sketcher.Constraint("Tangent", 72, 2, 73, 2))
sketch3.addConstraint(Sketcher.Constraint("Tangent", 73, 1, 74, 1))
sketch3.addConstraint(Sketcher.Constraint("Tangent", 74, 2, 75, 2))
sketch3.addConstraint(Sketcher.Constraint("Tangent", 75, 1, 72, 1))
sketch3.addConstraint(Sketcher.Constraint("Tangent", 76, 2, 77, 2))
sketch3.addConstraint(Sketcher.Constraint("Tangent", 77, 1, 78, 1))
sketch3.addConstraint(Sketcher.Constraint("Tangent", 78, 2, 79, 2))
sketch3.addConstraint(Sketcher.Constraint("Tangent", 79, 1, 76, 1))
sketch3.addConstraint(Sketcher.Constraint("Vertical", 1))
sketch3.addConstraint(Sketcher.Constraint("Vertical", 3))
sketch3.addConstraint(Sketcher.Constraint("Vertical", 4))
sketch3.addConstraint(Sketcher.Constraint("Vertical", 6))
sketch3.addConstraint(Sketcher.Constraint("Vertical", 8))
sketch3.addConstraint(Sketcher.Constraint("Vertical", 10))
sketch3.addConstraint(Sketcher.Constraint("Vertical", 12))
sketch3.addConstraint(Sketcher.Constraint("Vertical", 14))
sketch3.addConstraint(Sketcher.Constraint("Vertical", 16))
sketch3.addConstraint(Sketcher.Constraint("Vertical", 18))
sketch3.addConstraint(Sketcher.Constraint("Vertical", 20))
sketch3.addConstraint(Sketcher.Constraint("Vertical", 22))
sketch3.addConstraint(Sketcher.Constraint("Vertical", 24))
sketch3.addConstraint(Sketcher.Constraint("Vertical", 26))
sketch3.addConstraint(Sketcher.Constraint("Vertical", 28))
sketch3.addConstraint(Sketcher.Constraint("Vertical", 30))
sketch3.addConstraint(Sketcher.Constraint("Vertical", 32))
sketch3.addConstraint(Sketcher.Constraint("Vertical", 34))
sketch3.addConstraint(Sketcher.Constraint("Vertical", 36))
sketch3.addConstraint(Sketcher.Constraint("Vertical", 38))
sketch3.addConstraint(Sketcher.Constraint("Vertical", 40))
sketch3.addConstraint(Sketcher.Constraint("Vertical", 42))
sketch3.addConstraint(Sketcher.Constraint("Vertical", 44))
sketch3.addConstraint(Sketcher.Constraint("Vertical", 46))
sketch3.addConstraint(Sketcher.Constraint("Vertical", 48))
sketch3.addConstraint(Sketcher.Constraint("Vertical", 50))
sketch3.addConstraint(Sketcher.Constraint("Vertical", 52))
sketch3.addConstraint(Sketcher.Constraint("Vertical", 54))
sketch3.addConstraint(Sketcher.Constraint("Vertical", 56))
sketch3.addConstraint(Sketcher.Constraint("Vertical", 58))
sketch3.addConstraint(Sketcher.Constraint("Vertical", 60))
sketch3.addConstraint(Sketcher.Constraint("Vertical", 62))
sketch3.addConstraint(Sketcher.Constraint("Vertical", 64))
sketch3.addConstraint(Sketcher.Constraint("Vertical", 66))
sketch3.addConstraint(Sketcher.Constraint("Vertical", 68))
sketch3.addConstraint(Sketcher.Constraint("Vertical", 70))
sketch3.addConstraint(Sketcher.Constraint("Vertical", 72))
sketch3.addConstraint(Sketcher.Constraint("Vertical", 74))
sketch3.addConstraint(Sketcher.Constraint("Vertical", 76))
sketch3.addConstraint(Sketcher.Constraint("Vertical", 78))
sketch3.addConstraint(Sketcher.Constraint("Equal", 2, 5))
sketch3.addConstraint(Sketcher.Constraint("Equal", 7, 9))
sketch3.addConstraint(Sketcher.Constraint("Equal", 11, 13))
sketch3.addConstraint(Sketcher.Constraint("Equal", 15, 17))
sketch3.addConstraint(Sketcher.Constraint("Equal", 19, 21))
sketch3.addConstraint(Sketcher.Constraint("Equal", 23, 25))
sketch3.addConstraint(Sketcher.Constraint("Equal", 27, 29))
sketch3.addConstraint(Sketcher.Constraint("Equal", 31, 33))
sketch3.addConstraint(Sketcher.Constraint("Equal", 35, 37))
sketch3.addConstraint(Sketcher.Constraint("Equal", 39, 41))
sketch3.addConstraint(Sketcher.Constraint("Equal", 43, 45))
sketch3.addConstraint(Sketcher.Constraint("Equal", 47, 49))
sketch3.addConstraint(Sketcher.Constraint("Equal", 51, 53))
sketch3.addConstraint(Sketcher.Constraint("Equal", 55, 57))
sketch3.addConstraint(Sketcher.Constraint("Equal", 59, 61))
sketch3.addConstraint(Sketcher.Constraint("Equal", 63, 65))
sketch3.addConstraint(Sketcher.Constraint("Equal", 67, 69))
sketch3.addConstraint(Sketcher.Constraint("Equal", 71, 73))
sketch3.addConstraint(Sketcher.Constraint("Equal", 75, 77))
sketch3.addConstraint(Sketcher.Constraint("Horizontal", 0, 3, 9, 3))
sketch3.addConstraint(Sketcher.Constraint("Horizontal", 2, 3, 11, 3))
sketch3.addConstraint(Sketcher.Constraint("Horizontal", 5, 3, 13, 3))
sketch3.addConstraint(Sketcher.Constraint("Horizontal", 7, 3, 15, 3))
sketch3.addConstraint(Sketcher.Constraint("Horizontal", 9, 3, 17, 3))
sketch3.addConstraint(Sketcher.Constraint("Horizontal", 11, 3, 19, 3))
sketch3.addConstraint(Sketcher.Constraint("Horizontal", 13, 3, 21, 3))
sketch3.addConstraint(Sketcher.Constraint("Horizontal", 15, 3, 23, 3))
sketch3.addConstraint(Sketcher.Constraint("Horizontal", 17, 3, 25, 3))
sketch3.addConstraint(Sketcher.Constraint("Horizontal", 19, 3, 27, 3))
sketch3.addConstraint(Sketcher.Constraint("Horizontal", 21, 3, 29, 3))
sketch3.addConstraint(Sketcher.Constraint("Horizontal", 23, 3, 31, 3))
sketch3.addConstraint(Sketcher.Constraint("Horizontal", 25, 3, 33, 3))
sketch3.addConstraint(Sketcher.Constraint("Horizontal", 27, 3, 35, 3))
sketch3.addConstraint(Sketcher.Constraint("Horizontal", 29, 3, 37, 3))
sketch3.addConstraint(Sketcher.Constraint("Horizontal", 31, 3, 39, 3))
sketch3.addConstraint(Sketcher.Constraint("Horizontal", 33, 3, 41, 3))
sketch3.addConstraint(Sketcher.Constraint("Horizontal", 35, 3, 43, 3))
sketch3.addConstraint(Sketcher.Constraint("Horizontal", 37, 3, 45, 3))
sketch3.addConstraint(Sketcher.Constraint("Horizontal", 39, 3, 47, 3))
sketch3.addConstraint(Sketcher.Constraint("Horizontal", 41, 3, 49, 3))
sketch3.addConstraint(Sketcher.Constraint("Horizontal", 43, 3, 51, 3))
sketch3.addConstraint(Sketcher.Constraint("Horizontal", 45, 3, 53, 3))
sketch3.addConstraint(Sketcher.Constraint("Horizontal", 47, 3, 55, 3))
sketch3.addConstraint(Sketcher.Constraint("Horizontal", 49, 3, 57, 3))
sketch3.addConstraint(Sketcher.Constraint("Horizontal", 51, 3, 59, 3))
sketch3.addConstraint(Sketcher.Constraint("Horizontal", 53, 3, 61, 3))
sketch3.addConstraint(Sketcher.Constraint("Horizontal", 55, 3, 63, 3))
sketch3.addConstraint(Sketcher.Constraint("Horizontal", 57, 3, 65, 3))
sketch3.addConstraint(Sketcher.Constraint("Horizontal", 59, 3, 67, 3))
sketch3.addConstraint(Sketcher.Constraint("Horizontal", 61, 3, 69, 3))
sketch3.addConstraint(Sketcher.Constraint("Horizontal", 63, 3, 71, 3))
sketch3.addConstraint(Sketcher.Constraint("Horizontal", 65, 3, 73, 3))
sketch3.addConstraint(Sketcher.Constraint("Horizontal", 67, 3, 75, 3))
sketch3.addConstraint(Sketcher.Constraint("Horizontal", 69, 3, 77, 3))
sketch3.addConstraint(Sketcher.Constraint("Horizontal", 71, 3, 79, 3))
sketch3.addConstraint(Sketcher.Constraint("Vertical", 2, 3, 5, 3))
sketch3.addConstraint(Sketcher.Constraint("Vertical", 11, 3, 13, 3))
sketch3.addConstraint(Sketcher.Constraint("Vertical", 19, 3, 21, 3))
sketch3.addConstraint(Sketcher.Constraint("Vertical", 27, 3, 29, 3))
sketch3.addConstraint(Sketcher.Constraint("Vertical", 35, 3, 37, 3))
sketch3.addConstraint(Sketcher.Constraint("Vertical", 43, 3, 45, 3))
sketch3.addConstraint(Sketcher.Constraint("Vertical", 51, 3, 53, 3))
sketch3.addConstraint(Sketcher.Constraint("Vertical", 59, 3, 61, 3))
sketch3.addConstraint(Sketcher.Constraint("Vertical", 67, 3, 69, 3))
sketch3.addConstraint(Sketcher.Constraint("Vertical", 75, 3, 77, 3))
sketch3.addConstraint(Sketcher.Constraint("Equal", 3, 4))
sketch3.addConstraint(Sketcher.Constraint("Radius", 0, 2.0))
sketch3.addConstraint(Sketcher.Constraint("DistanceY", 1, 1, 1, 2, 100.0))
sketch3.addConstraint(Sketcher.Constraint("DistanceX", 0, 3, -1, 1, 175.0))
sketch3.addConstraint(Sketcher.Constraint("DistanceY", 0, 3, -1, 1, 165.0))
sketch3.addConstraint(Sketcher.Constraint("DistanceY", 5, 3, -1, 1, 6.0))
sketch3.addConstraint(Sketcher.Constraint("DistanceX", 9, 3, -1, 1, 137.0))
sketch3.addConstraint(Sketcher.Constraint("DistanceX", 17, 3, -1, 1, 99.0))
sketch3.addConstraint(Sketcher.Constraint("DistanceX", 25, 3, -1, 1, 61.0))
sketch3.addConstraint(Sketcher.Constraint("DistanceX", 33, 3, -1, 1, 23.0))
sketch3.addConstraint(Sketcher.Constraint("DistanceX", -1, 1, 41, 3, 15.0))
sketch3.addConstraint(Sketcher.Constraint("DistanceX", -1, 1, 49, 3, 53.0))
sketch3.addConstraint(Sketcher.Constraint("DistanceX", -1, 1, 57, 3, 91.0))
sketch3.addConstraint(Sketcher.Constraint("DistanceX", -1, 1, 65, 3, 129.0))
sketch3.addConstraint(Sketcher.Constraint("DistanceX", -1, 1, 73, 3, 167.0))
pocket2 = body.newObject("PartDesign::Pocket", "Pocket001")
pocket2.Profile = sketch3
pocket2.Length = 25
pocket2.Reversed = True

doc.recompute()
